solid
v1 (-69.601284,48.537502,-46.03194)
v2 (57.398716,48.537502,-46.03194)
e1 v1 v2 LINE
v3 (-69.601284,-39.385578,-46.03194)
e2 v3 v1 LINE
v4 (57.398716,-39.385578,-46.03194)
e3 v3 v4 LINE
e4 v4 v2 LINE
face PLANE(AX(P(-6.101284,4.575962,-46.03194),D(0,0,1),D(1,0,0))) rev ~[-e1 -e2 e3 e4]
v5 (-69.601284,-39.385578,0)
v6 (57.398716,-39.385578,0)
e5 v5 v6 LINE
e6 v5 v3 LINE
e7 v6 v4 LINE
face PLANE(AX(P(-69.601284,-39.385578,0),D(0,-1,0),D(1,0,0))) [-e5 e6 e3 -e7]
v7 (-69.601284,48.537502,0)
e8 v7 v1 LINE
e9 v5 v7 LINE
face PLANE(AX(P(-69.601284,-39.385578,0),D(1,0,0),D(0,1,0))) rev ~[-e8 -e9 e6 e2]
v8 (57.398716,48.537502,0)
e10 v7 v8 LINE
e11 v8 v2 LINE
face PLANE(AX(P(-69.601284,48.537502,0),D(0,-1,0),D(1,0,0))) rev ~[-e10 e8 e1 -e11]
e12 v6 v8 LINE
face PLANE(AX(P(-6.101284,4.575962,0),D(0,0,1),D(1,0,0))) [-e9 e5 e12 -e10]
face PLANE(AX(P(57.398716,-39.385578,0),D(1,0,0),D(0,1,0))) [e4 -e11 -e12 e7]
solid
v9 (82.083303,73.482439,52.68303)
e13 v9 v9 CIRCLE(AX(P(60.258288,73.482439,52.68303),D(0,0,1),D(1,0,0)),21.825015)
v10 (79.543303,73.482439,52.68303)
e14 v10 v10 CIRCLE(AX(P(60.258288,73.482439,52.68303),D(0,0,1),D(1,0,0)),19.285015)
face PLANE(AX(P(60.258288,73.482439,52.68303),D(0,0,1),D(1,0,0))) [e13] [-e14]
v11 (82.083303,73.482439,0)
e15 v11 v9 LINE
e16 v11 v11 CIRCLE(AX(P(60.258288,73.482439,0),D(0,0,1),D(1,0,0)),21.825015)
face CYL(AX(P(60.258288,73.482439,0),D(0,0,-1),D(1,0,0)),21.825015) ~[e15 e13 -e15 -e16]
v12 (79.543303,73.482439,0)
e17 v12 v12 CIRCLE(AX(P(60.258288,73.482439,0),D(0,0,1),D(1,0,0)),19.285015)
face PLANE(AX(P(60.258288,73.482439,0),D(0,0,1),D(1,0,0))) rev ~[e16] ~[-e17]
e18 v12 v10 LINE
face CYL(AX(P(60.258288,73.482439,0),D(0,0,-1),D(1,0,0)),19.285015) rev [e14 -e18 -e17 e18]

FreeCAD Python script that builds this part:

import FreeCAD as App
import Part
import Sketcher
Q = App.Units.Quantity


def faces_at(feature, points):
    """Names of the faces that lie closest to the given points."""
    faces = feature.Shape.Faces
    near = lambda p: min(range(len(faces)), key=lambda i: faces[i].distToShape(Part.Vertex(*p))[0])
    return sorted({f"Face{near(p) + 1}" for p in points})

doc = App.newDocument("Part")
body = doc.addObject("PartDesign::Body", "Body")

# Sketch on XY plane
sketch1 = body.newObject("Sketcher::SketchObject", "Sketch")
sketch1.AttachmentSupport = (doc.getObject("XY_Plane"), [""])
sketch1.MapMode = "FlatFace"
sketch1.addGeometry(Part.LineSegment(App.Vector(-70, 49, 0), App.Vector(-70, -39, 0)), False)
sketch1.addGeometry(Part.LineSegment(App.Vector(-70, -39, 0), App.Vector(57, -39, 0)), False)
sketch1.addGeometry(Part.LineSegment(App.Vector(57, -39, 0), App.Vector(57, 49, 0)), False)
sketch1.addGeometry(Part.LineSegment(App.Vector(57, 49, 0), App.Vector(-70, 49, 0)), False)
sketch1.addConstraint(Sketcher.Constraint("Coincident", 0, 2, 1, 1))
sketch1.addConstraint(Sketcher.Constraint("Coincident", 1, 2, 2, 1))
sketch1.addConstraint(Sketcher.Constraint("Coincident", 2, 2, 3, 1))
sketch1.addConstraint(Sketcher.Constraint("Coincident", 3, 2, 0, 1))
sketch1.addConstraint(Sketcher.Constraint("Vertical", 0))
sketch1.addConstraint(Sketcher.Constraint("Horizontal", 1))
sketch1.addConstraint(Sketcher.Constraint("Vertical", 2))
sketch1.addConstraint(Sketcher.Constraint("Horizontal", 3))
sketch1.addConstraint(Sketcher.Constraint("DistanceX", 1, 1, 1, 2, Q("5 in")))
sketch1.addConstraint(Sketcher.Constraint("DistanceY", 0, 2, 0, 1, Q("87.92308 mm")))
sketch1.addConstraint(Sketcher.Constraint("DistanceY", 0, 2, -1, 1, Q("39.385578 mm")))
sketch1.addConstraint(Sketcher.Constraint("DistanceX", 0, 2, -1, 1, Q("69.601284 mm")))
pad1 = body.newObject("PartDesign::Pad", "Pad")
pad1.Profile = sketch1
pad1.Length = 46.03194
pad1.Reversed = True
body2 = doc.addObject("PartDesign::Body", "Body001")

# Sketch on XY plane
sketch2 = body2.newObject("Sketcher::SketchObject", "Sketch001")
sketch2.AttachmentSupport = (doc.getObject("XY_Plane001"), [""])
sketch2.MapMode = "FlatFace"
sketch2.addGeometry(Part.Circle(App.Vector(60, 73, 0), App.Vector(0, 0, 1), 22), False)
sketch2.addConstraint(Sketcher.Constraint("Diameter", 0, Q("43.65003 mm")))
sketch2.addConstraint(Sketcher.Constraint("DistanceY", -1, 1, 0, 3, Q("73.482439 mm")))
sketch2.addConstraint(Sketcher.Constraint("DistanceX", -1, 1, 0, 3, Q("60.258288 mm")))
pad2 = body2.newObject("PartDesign::Pad", "Pad001")
pad2.Profile = sketch2
pad2.Length = 52.68303
doc.recompute()

thickness = body2.newObject("PartDesign::Thickness", "Thickness")
thickness.Base = (pad2, faces_at(pad2, [(60.258, 73.482, 52.683), (60.258, 73.482, 0)]))
thickness.Value = Q("0.1 in")
thickness.Reversed = True
thickness.Join = "Arc"

doc.recompute()
